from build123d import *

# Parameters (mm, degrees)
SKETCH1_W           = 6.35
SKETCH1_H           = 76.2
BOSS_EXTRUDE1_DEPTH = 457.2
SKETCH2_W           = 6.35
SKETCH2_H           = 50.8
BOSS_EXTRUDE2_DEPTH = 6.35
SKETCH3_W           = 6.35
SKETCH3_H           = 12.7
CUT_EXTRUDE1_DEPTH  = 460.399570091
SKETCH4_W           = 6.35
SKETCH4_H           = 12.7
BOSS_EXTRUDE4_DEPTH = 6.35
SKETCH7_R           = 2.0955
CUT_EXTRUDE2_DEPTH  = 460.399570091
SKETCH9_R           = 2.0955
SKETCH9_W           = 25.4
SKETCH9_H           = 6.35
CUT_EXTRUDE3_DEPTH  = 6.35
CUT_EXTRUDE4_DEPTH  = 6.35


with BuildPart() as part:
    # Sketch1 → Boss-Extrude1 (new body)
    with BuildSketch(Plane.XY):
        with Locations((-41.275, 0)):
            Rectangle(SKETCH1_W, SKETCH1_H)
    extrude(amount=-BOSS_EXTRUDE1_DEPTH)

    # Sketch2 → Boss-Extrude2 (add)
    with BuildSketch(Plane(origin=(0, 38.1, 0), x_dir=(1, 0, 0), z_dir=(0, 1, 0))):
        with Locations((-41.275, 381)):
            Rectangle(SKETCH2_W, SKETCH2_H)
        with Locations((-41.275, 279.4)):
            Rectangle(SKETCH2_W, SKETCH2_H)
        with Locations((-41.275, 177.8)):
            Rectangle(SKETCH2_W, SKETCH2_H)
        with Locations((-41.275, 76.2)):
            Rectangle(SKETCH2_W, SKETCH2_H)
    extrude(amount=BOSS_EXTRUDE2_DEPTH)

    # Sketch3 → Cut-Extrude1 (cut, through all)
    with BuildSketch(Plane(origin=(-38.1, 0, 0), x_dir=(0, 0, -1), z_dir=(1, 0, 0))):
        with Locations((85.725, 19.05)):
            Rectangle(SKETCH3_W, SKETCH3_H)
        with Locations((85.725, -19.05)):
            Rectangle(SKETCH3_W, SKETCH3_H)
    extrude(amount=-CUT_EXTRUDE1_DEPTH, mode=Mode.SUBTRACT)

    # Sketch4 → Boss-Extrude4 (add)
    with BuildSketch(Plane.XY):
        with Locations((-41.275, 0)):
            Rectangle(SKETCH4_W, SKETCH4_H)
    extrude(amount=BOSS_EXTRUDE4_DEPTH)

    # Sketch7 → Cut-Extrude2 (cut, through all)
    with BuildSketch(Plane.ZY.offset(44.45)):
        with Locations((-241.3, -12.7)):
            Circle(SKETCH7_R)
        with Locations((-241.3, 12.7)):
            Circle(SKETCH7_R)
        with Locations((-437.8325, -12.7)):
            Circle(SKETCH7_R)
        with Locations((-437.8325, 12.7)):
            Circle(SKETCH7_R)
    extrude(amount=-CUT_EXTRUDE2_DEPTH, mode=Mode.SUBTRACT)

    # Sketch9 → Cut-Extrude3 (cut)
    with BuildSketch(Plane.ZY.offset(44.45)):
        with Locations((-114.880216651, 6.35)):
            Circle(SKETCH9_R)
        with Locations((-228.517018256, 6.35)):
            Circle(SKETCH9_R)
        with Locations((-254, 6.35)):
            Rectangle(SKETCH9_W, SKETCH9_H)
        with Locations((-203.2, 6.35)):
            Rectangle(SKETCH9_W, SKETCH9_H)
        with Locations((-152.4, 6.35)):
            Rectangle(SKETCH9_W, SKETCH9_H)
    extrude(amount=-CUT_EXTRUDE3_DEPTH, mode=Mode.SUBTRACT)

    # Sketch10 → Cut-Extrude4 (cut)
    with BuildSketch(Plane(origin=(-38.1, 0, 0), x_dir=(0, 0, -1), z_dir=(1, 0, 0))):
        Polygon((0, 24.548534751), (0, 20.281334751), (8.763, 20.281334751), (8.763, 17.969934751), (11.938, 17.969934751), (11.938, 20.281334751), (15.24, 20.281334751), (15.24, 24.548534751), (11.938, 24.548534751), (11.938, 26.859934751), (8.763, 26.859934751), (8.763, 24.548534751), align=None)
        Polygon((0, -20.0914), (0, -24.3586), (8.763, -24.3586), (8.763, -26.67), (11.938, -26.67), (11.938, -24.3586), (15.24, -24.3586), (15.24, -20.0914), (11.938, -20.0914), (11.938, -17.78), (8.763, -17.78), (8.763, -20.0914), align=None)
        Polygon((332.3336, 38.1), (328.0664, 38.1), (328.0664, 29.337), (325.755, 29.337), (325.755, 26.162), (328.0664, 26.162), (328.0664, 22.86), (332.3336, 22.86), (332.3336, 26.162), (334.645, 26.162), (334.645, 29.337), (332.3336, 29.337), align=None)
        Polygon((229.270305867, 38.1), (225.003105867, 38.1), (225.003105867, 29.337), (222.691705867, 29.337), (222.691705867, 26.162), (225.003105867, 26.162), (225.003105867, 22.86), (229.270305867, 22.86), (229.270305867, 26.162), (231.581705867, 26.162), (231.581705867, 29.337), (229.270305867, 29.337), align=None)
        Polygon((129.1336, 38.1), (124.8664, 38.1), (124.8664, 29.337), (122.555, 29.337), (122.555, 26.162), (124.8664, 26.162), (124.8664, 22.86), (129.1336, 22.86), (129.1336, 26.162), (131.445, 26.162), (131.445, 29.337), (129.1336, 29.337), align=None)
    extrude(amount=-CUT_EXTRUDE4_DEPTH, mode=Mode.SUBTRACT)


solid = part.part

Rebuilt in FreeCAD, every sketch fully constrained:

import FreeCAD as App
import Part
import Sketcher
Q = App.Units.Quantity


def add_polygon(sketch, points):
    """Adds a closed chain of lines whose ends are joined by coincident constraints."""
    first, n = sketch.GeometryCount, len(points)
    for a, b in zip(points, points[1:] + points[:1]):
        sketch.addGeometry(Part.LineSegment(App.Vector(*a, 0), App.Vector(*b, 0)), False)
    for i in range(n):
        sketch.addConstraint(Sketcher.Constraint("Coincident", first + i, 2, first + (i + 1) % n, 1))

doc = App.newDocument("Part")
body = doc.addObject("PartDesign::Body", "Body")

# Sketch on XY plane
sketch1 = body.newObject("Sketcher::SketchObject", "Sketch")
sketch1.AttachmentSupport = (doc.getObject("XY_Plane"), [""])
sketch1.MapMode = "FlatFace"
add_polygon(sketch1, [(-44, 38), (-44, -38), (-38, -38), (-38, 38)])  # lines 0-3
sketch1.addConstraint(Sketcher.Constraint("Vertical", 0))
sketch1.addConstraint(Sketcher.Constraint("Horizontal", 1))
sketch1.addConstraint(Sketcher.Constraint("Vertical", 2))
sketch1.addConstraint(Sketcher.Constraint("Horizontal", 3))
sketch1.addConstraint(Sketcher.Constraint("DistanceY", 0, 2, 0, 1, Q("3 in")))
sketch1.addConstraint(Sketcher.Constraint("DistanceX", 1, 1, 1, 2, Q("0.25 in")))
sketch1.addConstraint(Sketcher.Constraint("DistanceY", 0, 2, -1, 1, Q("1.5 in")))
sketch1.addConstraint(Sketcher.Constraint("DistanceX", 1, 2, -1, 1, Q("1.5 in")))
pad1 = body.newObject("PartDesign::Pad", "Pad")
pad1.Profile = sketch1
pad1.Length = Q("18 in")
pad1.Reversed = True

# Sketch on XZ plane
sketch2 = body.newObject("Sketcher::SketchObject", "Sketch001")
sketch2.AttachmentSupport = (doc.getObject("XZ_Plane"), [""])
sketch2.MapMode = "FlatFace"
sketch2.AttachmentOffset = App.Placement(App.Vector(0, 0, -1.5 * 25.4), App.Rotation())
add_polygon(sketch2, [(-44, -406), (-44, -356), (-38, -356), (-38, -406)])  # lines 0-3
add_polygon(sketch2, [(-44, -305), (-44, -254), (-38, -254), (-38, -305)])  # lines 4-7
add_polygon(sketch2, [(-44, -203), (-44, -152), (-38, -152), (-38, -203)])  # lines 8-11
add_polygon(sketch2, [(-44, -102), (-44, -51), (-38, -51), (-38, -102)])  # lines 12-15
sketch2.addConstraint(Sketcher.Constraint("Vertical", 0))
sketch2.addConstraint(Sketcher.Constraint("Horizontal", 1))
sketch2.addConstraint(Sketcher.Constraint("Vertical", 2))
sketch2.addConstraint(Sketcher.Constraint("Horizontal", 3))
sketch2.addConstraint(Sketcher.Constraint("Vertical", 4))
sketch2.addConstraint(Sketcher.Constraint("Horizontal", 5))
sketch2.addConstraint(Sketcher.Constraint("Vertical", 6))
sketch2.addConstraint(Sketcher.Constraint("Horizontal", 7))
sketch2.addConstraint(Sketcher.Constraint("Vertical", 8))
sketch2.addConstraint(Sketcher.Constraint("Horizontal", 9))
sketch2.addConstraint(Sketcher.Constraint("Vertical", 10))
sketch2.addConstraint(Sketcher.Constraint("Horizontal", 11))
sketch2.addConstraint(Sketcher.Constraint("Vertical", 12))
sketch2.addConstraint(Sketcher.Constraint("Horizontal", 13))
sketch2.addConstraint(Sketcher.Constraint("Vertical", 14))
sketch2.addConstraint(Sketcher.Constraint("Horizontal", 15))
sketch2.addConstraint(Sketcher.Constraint("Vertical", 3, 2, 4, 2))
sketch2.addConstraint(Sketcher.Constraint("Vertical", 2, 2, 5, 2))
sketch2.addConstraint(Sketcher.Constraint("Vertical", 7, 2, 8, 2))
sketch2.addConstraint(Sketcher.Constraint("Vertical", 6, 2, 9, 2))
sketch2.addConstraint(Sketcher.Constraint("Vertical", 11, 2, 12, 2))
sketch2.addConstraint(Sketcher.Constraint("Vertical", 10, 2, 13, 2))
sketch2.addConstraint(Sketcher.Constraint("Equal", 2, 4))
sketch2.addConstraint(Sketcher.Constraint("Equal", 6, 8))
sketch2.addConstraint(Sketcher.Constraint("Equal", 10, 12))
sketch2.addConstraint(Sketcher.Constraint("DistanceY", 0, 1, 0, 2, Q("2 in")))
sketch2.addConstraint(Sketcher.Constraint("DistanceY", 0, 2, -1, 1, Q("14 in")))
sketch2.addConstraint(Sketcher.Constraint("DistanceY", 4, 2, -1, 1, Q("10 in")))
sketch2.addConstraint(Sketcher.Constraint("DistanceY", 8, 2, -1, 1, Q("6 in")))
sketch2.addConstraint(Sketcher.Constraint("DistanceY", 12, 2, -1, 1, Q("2 in")))
sketch2.addConstraint(Sketcher.Constraint("DistanceX", 1, 1, 1, 2, Q("0.25 in")))
sketch2.addConstraint(Sketcher.Constraint("DistanceX", 1, 2, -1, 1, Q("1.5 in")))
pad2 = body.newObject("PartDesign::Pad", "Pad001")
pad2.Profile = sketch2
pad2.Length = Q("0.25 in")
pad2.Reversed = True

# Sketch on YZ plane
sketch3 = body.newObject("Sketcher::SketchObject", "Sketch002")
sketch3.AttachmentSupport = (doc.getObject("YZ_Plane"), [""])
sketch3.MapMode = "FlatFace"
sketch3.AttachmentOffset = App.Placement(App.Vector(0, 0, -1.5 * 25.4), App.Rotation())
add_polygon(sketch3, [(25, -83), (13, -83), (13, -89), (25, -89)])  # lines 0-3
add_polygon(sketch3, [(-13, -83), (-25, -83), (-25, -89), (-13, -89)])  # lines 4-7
sketch3.addConstraint(Sketcher.Constraint("Horizontal", 0))
sketch3.addConstraint(Sketcher.Constraint("Vertical", 1))
sketch3.addConstraint(Sketcher.Constraint("Horizontal", 2))
sketch3.addConstraint(Sketcher.Constraint("Vertical", 3))
sketch3.addConstraint(Sketcher.Constraint("Horizontal", 4))
sketch3.addConstraint(Sketcher.Constraint("Vertical", 5))
sketch3.addConstraint(Sketcher.Constraint("Horizontal", 6))
sketch3.addConstraint(Sketcher.Constraint("Vertical", 7))
sketch3.addConstraint(Sketcher.Constraint("Symmetric", 3, 2, 4, 2, -2))
sketch3.addConstraint(Sketcher.Constraint("Symmetric", 1, 2, 6, 2, -2))
sketch3.addConstraint(Sketcher.Constraint("DistanceX", 0, 2, 0, 1, Q("0.5 in")))
sketch3.addConstraint(Sketcher.Constraint("DistanceX", -1, 1, 2, 2, Q("1 in")))
sketch3.addConstraint(Sketcher.Constraint("DistanceY", 1, 2, 1, 1, Q("0.25 in")))
sketch3.addConstraint(Sketcher.Constraint("DistanceY", 1, 2, -1, 1, Q("3.5 in")))
pocket1 = body.newObject("PartDesign::Pocket", "Pocket")
pocket1.Profile = sketch3
pocket1.Type = "ThroughAll"

# Sketch on XY plane
sketch4 = body.newObject("Sketcher::SketchObject", "Sketch003")
sketch4.AttachmentSupport = (doc.getObject("XY_Plane"), [""])
sketch4.MapMode = "FlatFace"
add_polygon(sketch4, [(-44, 6), (-44, -6), (-38, -6), (-38, 6)])  # lines 0-3
sketch4.addConstraint(Sketcher.Constraint("Vertical", 0))
sketch4.addConstraint(Sketcher.Constraint("Horizontal", 1))
sketch4.addConstraint(Sketcher.Constraint("Vertical", 2))
sketch4.addConstraint(Sketcher.Constraint("Horizontal", 3))
sketch4.addConstraint(Sketcher.Constraint("DistanceY", 0, 2, 0, 1, Q("0.5 in")))
sketch4.addConstraint(Sketcher.Constraint("DistanceX", 1, 1, 1, 2, Q("0.25 in")))
sketch4.addConstraint(Sketcher.Constraint("DistanceX", 1, 2, -1, 1, Q("1.5 in")))
sketch4.addConstraint(Sketcher.Constraint("DistanceY", 0, 2, -1, 1, Q("0.25 in")))
pad3 = body.newObject("PartDesign::Pad", "Pad002")
pad3.Profile = sketch4
pad3.Length = Q("0.25 in")

# Sketch on YZ plane
sketch5 = body.newObject("Sketcher::SketchObject", "Sketch004")
sketch5.AttachmentSupport = (doc.getObject("YZ_Plane"), [""])
sketch5.MapMode = "FlatFace"
sketch5.AttachmentOffset = App.Placement(App.Vector(0, 0, -1.75 * 25.4), App.Rotation())
sketch5.addGeometry(Part.Circle(App.Vector(-12.7, -241.3, 0), App.Vector(0, 0, 1), 2.1), False)
sketch5.addGeometry(Part.Circle(App.Vector(12.7, -241.3, 0), App.Vector(0, 0, 1), 2.1), False)
sketch5.addGeometry(Part.Circle(App.Vector(-12.7, -437.8, 0), App.Vector(0, 0, 1), 2.1), False)
sketch5.addGeometry(Part.Circle(App.Vector(12.7, -437.8, 0), App.Vector(0, 0, 1), 2.1), False)
sketch5.addConstraint(Sketcher.Constraint("Equal", 0, 1))
sketch5.addConstraint(Sketcher.Constraint("Equal", 1, 2))
sketch5.addConstraint(Sketcher.Constraint("Equal", 2, 3))
sketch5.addConstraint(Sketcher.Constraint("Symmetric", 0, 3, 1, 3, -2))
sketch5.addConstraint(Sketcher.Constraint("Symmetric", 2, 3, 3, 3, -2))
sketch5.addConstraint(Sketcher.Constraint("Vertical", 0, 3, 2, 3))
sketch5.addConstraint(Sketcher.Constraint("Diameter", 0, Q("0.165 in")))
sketch5.addConstraint(Sketcher.Constraint("DistanceX", 0, 3, 1, 3, Q("1 in")))
sketch5.addConstraint(Sketcher.Constraint("DistanceY", 0, 3, -1, 1, Q("9.5 in")))
sketch5.addConstraint(Sketcher.Constraint("DistanceY", 2, 3, -1, 1, Q("17.2375 in")))
pocket2 = body.newObject("PartDesign::Pocket", "Pocket001")
pocket2.Profile = sketch5
pocket2.Type = "ThroughAll"
pocket2.Reversed = True

# Sketch on YZ plane
sketch6 = body.newObject("Sketcher::SketchObject", "Sketch005")
sketch6.AttachmentSupport = (doc.getObject("YZ_Plane"), [""])
sketch6.MapMode = "FlatFace"
sketch6.AttachmentOffset = App.Placement(App.Vector(0, 0, -1.75 * 25.4), App.Rotation())
sketch6.addGeometry(Part.Circle(App.Vector(6.3, -114.9, 0), App.Vector(0, 0, 1), 2.1), False)  # 0
sketch6.addGeometry(Part.Circle(App.Vector(6.3, -228.5, 0), App.Vector(0, 0, 1), 2.1), False)  # 1
add_polygon(sketch6, [(9.5, -266.7), (3.2, -266.7), (3.2, -241.3), (9.5, -241.3)])  # lines 2-5
add_polygon(sketch6, [(9.5, -215.9), (3.2, -215.9), (3.2, -190.5), (9.5, -190.5)])  # lines 6-9
add_polygon(sketch6, [(9.5, -165.1), (3.2, -165.1), (3.2, -139.7), (9.5, -139.7)])  # lines 10-13
sketch6.addConstraint(Sketcher.Constraint("Horizontal", 2))
sketch6.addConstraint(Sketcher.Constraint("Vertical", 3))
sketch6.addConstraint(Sketcher.Constraint("Horizontal", 4))
sketch6.addConstraint(Sketcher.Constraint("Vertical", 5))
sketch6.addConstraint(Sketcher.Constraint("Horizontal", 6))
sketch6.addConstraint(Sketcher.Constraint("Vertical", 7))
sketch6.addConstraint(Sketcher.Constraint("Horizontal", 8))
sketch6.addConstraint(Sketcher.Constraint("Vertical", 9))
sketch6.addConstraint(Sketcher.Constraint("Horizontal", 10))
sketch6.addConstraint(Sketcher.Constraint("Vertical", 11))
sketch6.addConstraint(Sketcher.Constraint("Horizontal", 12))
sketch6.addConstraint(Sketcher.Constraint("Vertical", 13))
sketch6.addConstraint(Sketcher.Constraint("Equal", 0, 1))
sketch6.addConstraint(Sketcher.Constraint("Vertical", 0, 3, 1, 3))
sketch6.addConstraint(Sketcher.Constraint("Vertical", 3, 2, 6, 2))
sketch6.addConstraint(Sketcher.Constraint("Vertical", 5, 2, 8, 2))
sketch6.addConstraint(Sketcher.Constraint("Vertical", 7, 2, 10, 2))
sketch6.addConstraint(Sketcher.Constraint("Vertical", 9, 2, 12, 2))
sketch6.addConstraint(Sketcher.Constraint("Equal", 5, 7))
sketch6.addConstraint(Sketcher.Constraint("Equal", 9, 11))
sketch6.addConstraint(Sketcher.Constraint("DistanceY", 3, 1, 3, 2, Q("1 in")))
sketch6.addConstraint(Sketcher.Constraint("Diameter", 0, Q("0.165 in")))
sketch6.addConstraint(Sketcher.Constraint("DistanceY", 3, 2, 6, 2, Q("1 in")))
sketch6.addConstraint(Sketcher.Constraint("DistanceY", 7, 2, 10, 2, Q("1 in")))
sketch6.addConstraint(Sketcher.Constraint("DistanceX", 2, 2, 2, 1, Q("0.25 in")))
sketch6.addConstraint(Sketcher.Constraint("DistanceY", 2, 2, -1, 1, Q("10.5 in")))
sketch6.addConstraint(Sketcher.Constraint("DistanceX", -1, 1, 0, 3, Q("0.25 in")))
sketch6.addConstraint(Sketcher.Constraint("DistanceX", -1, 1, 2, 2, Q("0.125 in")))
sketch6.addConstraint(Sketcher.Constraint("DistanceY", 1, 3, 0, 3, Q("113.636802 mm")))
sketch6.addConstraint(Sketcher.Constraint("DistanceY", 1, 3, -1, 1, Q("228.517018 mm")))
pocket3 = body.newObject("PartDesign::Pocket", "Pocket002")
pocket3.Profile = sketch6
pocket3.Length = Q("0.25 in")
pocket3.Reversed = True

# Sketch on YZ plane
sketch7 = body.newObject("Sketcher::SketchObject", "Sketch006")
sketch7.AttachmentSupport = (doc.getObject("YZ_Plane"), [""])
sketch7.MapMode = "FlatFace"
sketch7.AttachmentOffset = App.Placement(App.Vector(0, 0, -1.5 * 25.4), App.Rotation())
add_polygon(sketch7, [(24.5, 0), (20.3, 0), (20.3, -8.8), (18, -8.8), (18, -11.9), (20.3, -11.9), (20.3, -15.2), (24.5, -15.2), (24.5, -11.9), (26.9, -11.9), (26.9, -8.8), (24.5, -8.8)])  # lines 0-11
add_polygon(sketch7, [(-20.1, 0), (-24.4, 0), (-24.4, -8.8), (-26.7, -8.8), (-26.7, -11.9), (-24.4, -11.9), (-24.4, -15.2), (-20.1, -15.2), (-20.1, -11.9), (-17.8, -11.9), (-17.8, -8.8), (-20.1, -8.8)])  # lines 12-23
add_polygon(sketch7, [(38.1, -332.3), (38.1, -328.1), (29.3, -328.1), (29.3, -325.8), (26.2, -325.8), (26.2, -328.1), (22.9, -328.1), (22.9, -332.3), (26.2, -332.3), (26.2, -334.6), (29.3, -334.6), (29.3, -332.3)])  # lines 24-35
add_polygon(sketch7, [(38.1, -229.3), (38.1, -225), (29.3, -225), (29.3, -222.7), (26.2, -222.7), (26.2, -225), (22.9, -225), (22.9, -229.3), (26.2, -229.3), (26.2, -231.6), (29.3, -231.6), (29.3, -229.3)])  # lines 36-47
add_polygon(sketch7, [(38.1, -129.1), (38.1, -124.9), (29.3, -124.9), (29.3, -122.6), (26.2, -122.6), (26.2, -124.9), (22.9, -124.9), (22.9, -129.1), (26.2, -129.1), (26.2, -131.4), (29.3, -131.4), (29.3, -129.1)])  # lines 48-59
sketch7.addConstraint(Sketcher.Constraint("Horizontal", 0))
sketch7.addConstraint(Sketcher.Constraint("Vertical", 1))
sketch7.addConstraint(Sketcher.Constraint("Horizontal", 2))
sketch7.addConstraint(Sketcher.Constraint("Vertical", 3))
sketch7.addConstraint(Sketcher.Constraint("Horizontal", 4))
sketch7.addConstraint(Sketcher.Constraint("Vertical", 5))
sketch7.addConstraint(Sketcher.Constraint("Horizontal", 6))
sketch7.addConstraint(Sketcher.Constraint("Vertical", 7))
sketch7.addConstraint(Sketcher.Constraint("Horizontal", 8))
sketch7.addConstraint(Sketcher.Constraint("Vertical", 9))
sketch7.addConstraint(Sketcher.Constraint("Horizontal", 10))
sketch7.addConstraint(Sketcher.Constraint("Vertical", 11))
sketch7.addConstraint(Sketcher.Constraint("Horizontal", 12))
sketch7.addConstraint(Sketcher.Constraint("Vertical", 13))
sketch7.addConstraint(Sketcher.Constraint("Horizontal", 14))
sketch7.addConstraint(Sketcher.Constraint("Vertical", 15))
sketch7.addConstraint(Sketcher.Constraint("Horizontal", 16))
sketch7.addConstraint(Sketcher.Constraint("Vertical", 17))
sketch7.addConstraint(Sketcher.Constraint("Horizontal", 18))
sketch7.addConstraint(Sketcher.Constraint("Vertical", 19))
sketch7.addConstraint(Sketcher.Constraint("Horizontal", 20))
sketch7.addConstraint(Sketcher.Constraint("Vertical", 21))
sketch7.addConstraint(Sketcher.Constraint("Horizontal", 22))
sketch7.addConstraint(Sketcher.Constraint("Vertical", 23))
sketch7.addConstraint(Sketcher.Constraint("Vertical", 24))
sketch7.addConstraint(Sketcher.Constraint("Horizontal", 25))
sketch7.addConstraint(Sketcher.Constraint("Vertical", 26))
sketch7.addConstraint(Sketcher.Constraint("Horizontal", 27))
sketch7.addConstraint(Sketcher.Constraint("Vertical", 28))
sketch7.addConstraint(Sketcher.Constraint("Horizontal", 29))
sketch7.addConstraint(Sketcher.Constraint("Vertical", 30))
sketch7.addConstraint(Sketcher.Constraint("Horizontal", 31))
sketch7.addConstraint(Sketcher.Constraint("Vertical", 32))
sketch7.addConstraint(Sketcher.Constraint("Horizontal", 33))
sketch7.addConstraint(Sketcher.Constraint("Vertical", 34))
sketch7.addConstraint(Sketcher.Constraint("Horizontal", 35))
sketch7.addConstraint(Sketcher.Constraint("Vertical", 36))
sketch7.addConstraint(Sketcher.Constraint("Horizontal", 37))
sketch7.addConstraint(Sketcher.Constraint("Vertical", 38))
sketch7.addConstraint(Sketcher.Constraint("Horizontal", 39))
sketch7.addConstraint(Sketcher.Constraint("Vertical", 40))
sketch7.addConstraint(Sketcher.Constraint("Horizontal", 41))
sketch7.addConstraint(Sketcher.Constraint("Vertical", 42))
sketch7.addConstraint(Sketcher.Constraint("Horizontal", 43))
sketch7.addConstraint(Sketcher.Constraint("Vertical", 44))
sketch7.addConstraint(Sketcher.Constraint("Horizontal", 45))
sketch7.addConstraint(Sketcher.Constraint("Vertical", 46))
sketch7.addConstraint(Sketcher.Constraint("Horizontal", 47))
sketch7.addConstraint(Sketcher.Constraint("Vertical", 48))
sketch7.addConstraint(Sketcher.Constraint("Horizontal", 49))
sketch7.addConstraint(Sketcher.Constraint("Vertical", 50))
sketch7.addConstraint(Sketcher.Constraint("Horizontal", 51))
sketch7.addConstraint(Sketcher.Constraint("Vertical", 52))
sketch7.addConstraint(Sketcher.Constraint("Horizontal", 53))
sketch7.addConstraint(Sketcher.Constraint("Vertical", 54))
sketch7.addConstraint(Sketcher.Constraint("Horizontal", 55))
sketch7.addConstraint(Sketcher.Constraint("Vertical", 56))
sketch7.addConstraint(Sketcher.Constraint("Horizontal", 57))
sketch7.addConstraint(Sketcher.Constraint("Vertical", 58))
sketch7.addConstraint(Sketcher.Constraint("Horizontal", 59))
sketch7.addConstraint(Sketcher.Constraint("PointOnObject", 0, 2, -1))
sketch7.addConstraint(Sketcher.Constraint("PointOnObject", 12, 2, -1))
sketch7.addConstraint(Sketcher.Constraint("Horizontal", 4, 2, 7, 2))
sketch7.addConstraint(Sketcher.Constraint("Horizontal", 2, 2, 9, 2))
sketch7.addConstraint(Sketcher.Constraint("Horizontal", 10, 2, 13, 2))
sketch7.addConstraint(Sketcher.Constraint("Horizontal", 8, 2, 15, 2))
sketch7.addConstraint(Sketcher.Constraint("Horizontal", 6, 2, 17, 2))
sketch7.addConstraint(Sketcher.Constraint("Horizontal", 16, 2, 19, 2))
sketch7.addConstraint(Sketcher.Constraint("Horizontal", 14, 2, 21, 2))
sketch7.addConstraint(Sketcher.Constraint("Horizontal", 25, 2, 28, 2))
sketch7.addConstraint(Sketcher.Constraint("Horizontal", 31, 2, 34, 2))
sketch7.addConstraint(Sketcher.Constraint("Horizontal", 37, 2, 40, 2))
sketch7.addConstraint(Sketcher.Constraint("Horizontal", 43, 2, 46, 2))
sketch7.addConstraint(Sketcher.Constraint("Horizontal", 49, 2, 52, 2))
sketch7.addConstraint(Sketcher.Constraint("Horizontal", 55, 2, 58, 2))
sketch7.addConstraint(Sketcher.Constraint("Vertical", 1, 2, 4, 2))
sketch7.addConstraint(Sketcher.Constraint("Vertical", 7, 2, 10, 2))
sketch7.addConstraint(Sketcher.Constraint("Vertical", 13, 2, 16, 2))
sketch7.addConstraint(Sketcher.Constraint("Vertical", 19, 2, 22, 2))
sketch7.addConstraint(Sketcher.Constraint("Vertical", 28, 2, 31, 2))
sketch7.addConstraint(Sketcher.Constraint("Vertical", 26, 2, 33, 2))
sketch7.addConstraint(Sketcher.Constraint("Vertical", 35, 2, 36, 2))
sketch7.addConstraint(Sketcher.Constraint("Vertical", 34, 2, 37, 2))
sketch7.addConstraint(Sketcher.Constraint("Vertical", 32, 2, 39, 2))
sketch7.addConstraint(Sketcher.Constraint("Vertical", 30, 2, 41, 2))
sketch7.addConstraint(Sketcher.Constraint("Vertical", 40, 2, 43, 2))
sketch7.addConstraint(Sketcher.Constraint("Vertical", 38, 2, 45, 2))
sketch7.addConstraint(Sketcher.Constraint("Vertical", 47, 2, 48, 2))
sketch7.addConstraint(Sketcher.Constraint("Vertical", 46, 2, 49, 2))
sketch7.addConstraint(Sketcher.Constraint("Vertical", 44, 2, 51, 2))
sketch7.addConstraint(Sketcher.Constraint("Vertical", 42, 2, 53, 2))
sketch7.addConstraint(Sketcher.Constraint("Vertical", 52, 2, 55, 2))
sketch7.addConstraint(Sketcher.Constraint("Vertical", 50, 2, 57, 2))
sketch7.addConstraint(Sketcher.Constraint("Equal", 4, 8))
sketch7.addConstraint(Sketcher.Constraint("Equal", 6, 12))
sketch7.addConstraint(Sketcher.Constraint("Equal", 10, 14))
sketch7.addConstraint(Sketcher.Constraint("Equal", 16, 20))
sketch7.addConstraint(Sketcher.Constraint("Equal", 59, 1))
sketch7.addConstraint(Sketcher.Constraint("Equal", 57, 3))
sketch7.addConstraint(Sketcher.Constraint("Equal", 55, 5))
sketch7.addConstraint(Sketcher.Constraint("Equal", 18, 24))
sketch7.addConstraint(Sketcher.Constraint("Equal", 22, 26))
sketch7.addConstraint(Sketcher.Constraint("Equal", 28, 32))
sketch7.addConstraint(Sketcher.Constraint("Equal", 30, 36))
sketch7.addConstraint(Sketcher.Constraint("Equal", 34, 38))
sketch7.addConstraint(Sketcher.Constraint("Equal", 40, 44))
sketch7.addConstraint(Sketcher.Constraint("Equal", 42, 48))
sketch7.addConstraint(Sketcher.Constraint("Equal", 46, 50))
sketch7.addConstraint(Sketcher.Constraint("Equal", 52, 56))
sketch7.addConstraint(Sketcher.Constraint("DistanceX", 29, 2, 29, 1, Q("0.13 in")))
sketch7.addConstraint(Sketcher.Constraint("DistanceY", 5, 2, -1, 1, Q("0.6 in")))
sketch7.addConstraint(Sketcher.Constraint("DistanceX", 20, 2, -1, 1, Q("0.7 in")))
sketch7.addConstraint(Sketcher.Constraint("DistanceX", -1, 1, 24, 2, Q("1.5 in")))
sketch7.addConstraint(Sketcher.Constraint("DistanceX", 0, 2, 0, 1, Q("0.168 in")))
sketch7.addConstraint(Sketcher.Constraint("DistanceX", 2, 2, 2, 1, Q("0.091 in")))
sketch7.addConstraint(Sketcher.Constraint("DistanceX", 25, 2, 25, 1, Q("0.345 in")))
sketch7.addConstraint(Sketcher.Constraint("DistanceY", 24, 2, -1, 1, Q("12.916 in")))
sketch7.addConstraint(Sketcher.Constraint("DistanceY", 48, 2, -1, 1, Q("4.916 in")))
sketch7.addConstraint(Sketcher.Constraint("DistanceX", -1, 1, 0, 2, Q("20.281335 mm")))
sketch7.addConstraint(Sketcher.Constraint("DistanceY", 36, 2, -1, 1, Q("225.003106 mm")))
pocket4 = body.newObject("PartDesign::Pocket", "Pocket003")
pocket4.Profile = sketch7
pocket4.Length = Q("0.25 in")

doc.recompute()
